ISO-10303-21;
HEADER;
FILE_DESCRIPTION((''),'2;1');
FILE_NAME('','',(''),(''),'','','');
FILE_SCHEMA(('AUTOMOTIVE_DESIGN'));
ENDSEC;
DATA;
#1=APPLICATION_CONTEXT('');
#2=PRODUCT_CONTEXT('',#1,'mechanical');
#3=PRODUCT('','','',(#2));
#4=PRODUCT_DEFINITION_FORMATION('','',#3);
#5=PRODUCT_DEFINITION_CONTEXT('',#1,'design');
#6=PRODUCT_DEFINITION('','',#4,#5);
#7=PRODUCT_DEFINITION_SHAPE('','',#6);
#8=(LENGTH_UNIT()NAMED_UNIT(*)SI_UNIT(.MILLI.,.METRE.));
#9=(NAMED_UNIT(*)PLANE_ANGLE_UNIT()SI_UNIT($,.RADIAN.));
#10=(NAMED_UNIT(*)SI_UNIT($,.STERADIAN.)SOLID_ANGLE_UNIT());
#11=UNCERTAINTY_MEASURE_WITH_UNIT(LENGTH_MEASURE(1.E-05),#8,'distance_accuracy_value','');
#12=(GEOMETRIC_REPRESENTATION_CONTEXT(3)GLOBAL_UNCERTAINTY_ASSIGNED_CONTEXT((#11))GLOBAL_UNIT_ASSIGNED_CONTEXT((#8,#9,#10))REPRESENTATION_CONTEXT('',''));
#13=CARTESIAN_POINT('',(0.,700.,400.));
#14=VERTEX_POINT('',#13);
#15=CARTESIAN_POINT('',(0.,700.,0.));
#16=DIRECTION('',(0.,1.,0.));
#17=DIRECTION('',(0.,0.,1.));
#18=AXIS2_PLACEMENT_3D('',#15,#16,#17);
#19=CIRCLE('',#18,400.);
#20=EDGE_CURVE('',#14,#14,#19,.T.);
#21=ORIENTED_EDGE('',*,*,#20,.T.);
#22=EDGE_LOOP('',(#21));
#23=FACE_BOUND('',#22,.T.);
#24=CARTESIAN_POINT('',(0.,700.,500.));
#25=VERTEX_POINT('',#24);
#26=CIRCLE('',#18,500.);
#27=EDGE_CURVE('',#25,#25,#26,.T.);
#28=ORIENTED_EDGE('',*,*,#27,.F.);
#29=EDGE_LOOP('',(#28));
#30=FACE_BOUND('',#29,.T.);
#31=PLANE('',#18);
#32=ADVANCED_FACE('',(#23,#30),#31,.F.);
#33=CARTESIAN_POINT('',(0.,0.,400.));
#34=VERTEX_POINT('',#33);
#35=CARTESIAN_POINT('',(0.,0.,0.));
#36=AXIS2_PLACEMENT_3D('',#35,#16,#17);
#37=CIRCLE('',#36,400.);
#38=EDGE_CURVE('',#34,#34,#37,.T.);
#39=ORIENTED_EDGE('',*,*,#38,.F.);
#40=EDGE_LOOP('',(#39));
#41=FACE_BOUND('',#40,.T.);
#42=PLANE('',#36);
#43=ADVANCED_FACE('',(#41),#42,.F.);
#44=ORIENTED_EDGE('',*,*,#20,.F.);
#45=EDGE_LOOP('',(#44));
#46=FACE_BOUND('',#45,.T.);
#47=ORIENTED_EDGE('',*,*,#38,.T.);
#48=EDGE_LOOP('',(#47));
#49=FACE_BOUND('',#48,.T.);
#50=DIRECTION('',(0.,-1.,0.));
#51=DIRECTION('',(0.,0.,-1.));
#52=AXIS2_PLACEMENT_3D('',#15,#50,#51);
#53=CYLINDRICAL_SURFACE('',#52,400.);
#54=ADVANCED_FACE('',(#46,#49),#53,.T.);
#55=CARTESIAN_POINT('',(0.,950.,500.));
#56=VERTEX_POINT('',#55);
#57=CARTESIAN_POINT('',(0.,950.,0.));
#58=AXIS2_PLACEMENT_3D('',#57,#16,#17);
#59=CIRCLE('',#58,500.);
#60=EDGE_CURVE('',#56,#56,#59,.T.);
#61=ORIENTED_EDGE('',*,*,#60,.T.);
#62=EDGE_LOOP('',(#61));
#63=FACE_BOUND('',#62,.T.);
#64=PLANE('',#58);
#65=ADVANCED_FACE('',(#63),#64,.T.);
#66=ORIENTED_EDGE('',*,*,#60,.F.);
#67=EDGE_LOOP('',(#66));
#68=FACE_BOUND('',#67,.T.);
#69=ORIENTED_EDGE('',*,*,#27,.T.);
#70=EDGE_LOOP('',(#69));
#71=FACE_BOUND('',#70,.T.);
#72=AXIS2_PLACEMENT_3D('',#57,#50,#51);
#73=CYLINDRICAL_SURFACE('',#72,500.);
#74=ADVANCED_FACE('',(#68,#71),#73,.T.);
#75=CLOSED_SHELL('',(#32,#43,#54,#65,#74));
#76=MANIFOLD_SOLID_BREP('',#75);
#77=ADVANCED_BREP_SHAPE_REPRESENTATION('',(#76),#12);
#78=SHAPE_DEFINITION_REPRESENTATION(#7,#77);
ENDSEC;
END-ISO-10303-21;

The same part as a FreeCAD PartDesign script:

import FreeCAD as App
import Part
import Sketcher

V = App.Vector
Q = App.Units.Quantity

doc = App.newDocument("Part")
body = doc.addObject("PartDesign::Body", "Body")

# Sketch on XZ plane
sketch1 = doc.addObject("Sketcher::SketchObject", "Sketch")
body.addObject(sketch1)
sketch1.AttachmentSupport = (doc.XZ_Plane, [""])
sketch1.MapMode = "FlatFace"
sketch1.addGeometry(Part.Circle(V(0, 0, 0), V(0, 0, 1), 400), False)
sketch1.addConstraint(Sketcher.Constraint("Coincident", 0, 3, -1, 1))
sketch1.addConstraint(Sketcher.Constraint("Diameter", 0, Q("800 mm")))
pad1 = doc.addObject("PartDesign::Pad", "Pad")
body.addObject(pad1)
pad1.Profile = sketch1
pad1.Length = 700
pad1.Reversed = True

# Sketch on XZ plane
sketch2 = doc.addObject("Sketcher::SketchObject", "Sketch001")
body.addObject(sketch2)
sketch2.AttachmentSupport = (doc.XZ_Plane, [""])
sketch2.MapMode = "FlatFace"
sketch2.AttachmentOffset = App.Placement(V(0, 0, -700), App.Rotation())
sketch2.addGeometry(Part.Circle(V(0, 0, 0), V(0, 0, 1), 500), False)
sketch2.addConstraint(Sketcher.Constraint("Coincident", 0, 3, -1, 1))
sketch2.addConstraint(Sketcher.Constraint("Diameter", 0, Q("1000 mm")))
pad2 = doc.addObject("PartDesign::Pad", "Pad001")
body.addObject(pad2)
pad2.Profile = sketch2
pad2.Length = 250
pad2.Reversed = True

doc.recompute()
